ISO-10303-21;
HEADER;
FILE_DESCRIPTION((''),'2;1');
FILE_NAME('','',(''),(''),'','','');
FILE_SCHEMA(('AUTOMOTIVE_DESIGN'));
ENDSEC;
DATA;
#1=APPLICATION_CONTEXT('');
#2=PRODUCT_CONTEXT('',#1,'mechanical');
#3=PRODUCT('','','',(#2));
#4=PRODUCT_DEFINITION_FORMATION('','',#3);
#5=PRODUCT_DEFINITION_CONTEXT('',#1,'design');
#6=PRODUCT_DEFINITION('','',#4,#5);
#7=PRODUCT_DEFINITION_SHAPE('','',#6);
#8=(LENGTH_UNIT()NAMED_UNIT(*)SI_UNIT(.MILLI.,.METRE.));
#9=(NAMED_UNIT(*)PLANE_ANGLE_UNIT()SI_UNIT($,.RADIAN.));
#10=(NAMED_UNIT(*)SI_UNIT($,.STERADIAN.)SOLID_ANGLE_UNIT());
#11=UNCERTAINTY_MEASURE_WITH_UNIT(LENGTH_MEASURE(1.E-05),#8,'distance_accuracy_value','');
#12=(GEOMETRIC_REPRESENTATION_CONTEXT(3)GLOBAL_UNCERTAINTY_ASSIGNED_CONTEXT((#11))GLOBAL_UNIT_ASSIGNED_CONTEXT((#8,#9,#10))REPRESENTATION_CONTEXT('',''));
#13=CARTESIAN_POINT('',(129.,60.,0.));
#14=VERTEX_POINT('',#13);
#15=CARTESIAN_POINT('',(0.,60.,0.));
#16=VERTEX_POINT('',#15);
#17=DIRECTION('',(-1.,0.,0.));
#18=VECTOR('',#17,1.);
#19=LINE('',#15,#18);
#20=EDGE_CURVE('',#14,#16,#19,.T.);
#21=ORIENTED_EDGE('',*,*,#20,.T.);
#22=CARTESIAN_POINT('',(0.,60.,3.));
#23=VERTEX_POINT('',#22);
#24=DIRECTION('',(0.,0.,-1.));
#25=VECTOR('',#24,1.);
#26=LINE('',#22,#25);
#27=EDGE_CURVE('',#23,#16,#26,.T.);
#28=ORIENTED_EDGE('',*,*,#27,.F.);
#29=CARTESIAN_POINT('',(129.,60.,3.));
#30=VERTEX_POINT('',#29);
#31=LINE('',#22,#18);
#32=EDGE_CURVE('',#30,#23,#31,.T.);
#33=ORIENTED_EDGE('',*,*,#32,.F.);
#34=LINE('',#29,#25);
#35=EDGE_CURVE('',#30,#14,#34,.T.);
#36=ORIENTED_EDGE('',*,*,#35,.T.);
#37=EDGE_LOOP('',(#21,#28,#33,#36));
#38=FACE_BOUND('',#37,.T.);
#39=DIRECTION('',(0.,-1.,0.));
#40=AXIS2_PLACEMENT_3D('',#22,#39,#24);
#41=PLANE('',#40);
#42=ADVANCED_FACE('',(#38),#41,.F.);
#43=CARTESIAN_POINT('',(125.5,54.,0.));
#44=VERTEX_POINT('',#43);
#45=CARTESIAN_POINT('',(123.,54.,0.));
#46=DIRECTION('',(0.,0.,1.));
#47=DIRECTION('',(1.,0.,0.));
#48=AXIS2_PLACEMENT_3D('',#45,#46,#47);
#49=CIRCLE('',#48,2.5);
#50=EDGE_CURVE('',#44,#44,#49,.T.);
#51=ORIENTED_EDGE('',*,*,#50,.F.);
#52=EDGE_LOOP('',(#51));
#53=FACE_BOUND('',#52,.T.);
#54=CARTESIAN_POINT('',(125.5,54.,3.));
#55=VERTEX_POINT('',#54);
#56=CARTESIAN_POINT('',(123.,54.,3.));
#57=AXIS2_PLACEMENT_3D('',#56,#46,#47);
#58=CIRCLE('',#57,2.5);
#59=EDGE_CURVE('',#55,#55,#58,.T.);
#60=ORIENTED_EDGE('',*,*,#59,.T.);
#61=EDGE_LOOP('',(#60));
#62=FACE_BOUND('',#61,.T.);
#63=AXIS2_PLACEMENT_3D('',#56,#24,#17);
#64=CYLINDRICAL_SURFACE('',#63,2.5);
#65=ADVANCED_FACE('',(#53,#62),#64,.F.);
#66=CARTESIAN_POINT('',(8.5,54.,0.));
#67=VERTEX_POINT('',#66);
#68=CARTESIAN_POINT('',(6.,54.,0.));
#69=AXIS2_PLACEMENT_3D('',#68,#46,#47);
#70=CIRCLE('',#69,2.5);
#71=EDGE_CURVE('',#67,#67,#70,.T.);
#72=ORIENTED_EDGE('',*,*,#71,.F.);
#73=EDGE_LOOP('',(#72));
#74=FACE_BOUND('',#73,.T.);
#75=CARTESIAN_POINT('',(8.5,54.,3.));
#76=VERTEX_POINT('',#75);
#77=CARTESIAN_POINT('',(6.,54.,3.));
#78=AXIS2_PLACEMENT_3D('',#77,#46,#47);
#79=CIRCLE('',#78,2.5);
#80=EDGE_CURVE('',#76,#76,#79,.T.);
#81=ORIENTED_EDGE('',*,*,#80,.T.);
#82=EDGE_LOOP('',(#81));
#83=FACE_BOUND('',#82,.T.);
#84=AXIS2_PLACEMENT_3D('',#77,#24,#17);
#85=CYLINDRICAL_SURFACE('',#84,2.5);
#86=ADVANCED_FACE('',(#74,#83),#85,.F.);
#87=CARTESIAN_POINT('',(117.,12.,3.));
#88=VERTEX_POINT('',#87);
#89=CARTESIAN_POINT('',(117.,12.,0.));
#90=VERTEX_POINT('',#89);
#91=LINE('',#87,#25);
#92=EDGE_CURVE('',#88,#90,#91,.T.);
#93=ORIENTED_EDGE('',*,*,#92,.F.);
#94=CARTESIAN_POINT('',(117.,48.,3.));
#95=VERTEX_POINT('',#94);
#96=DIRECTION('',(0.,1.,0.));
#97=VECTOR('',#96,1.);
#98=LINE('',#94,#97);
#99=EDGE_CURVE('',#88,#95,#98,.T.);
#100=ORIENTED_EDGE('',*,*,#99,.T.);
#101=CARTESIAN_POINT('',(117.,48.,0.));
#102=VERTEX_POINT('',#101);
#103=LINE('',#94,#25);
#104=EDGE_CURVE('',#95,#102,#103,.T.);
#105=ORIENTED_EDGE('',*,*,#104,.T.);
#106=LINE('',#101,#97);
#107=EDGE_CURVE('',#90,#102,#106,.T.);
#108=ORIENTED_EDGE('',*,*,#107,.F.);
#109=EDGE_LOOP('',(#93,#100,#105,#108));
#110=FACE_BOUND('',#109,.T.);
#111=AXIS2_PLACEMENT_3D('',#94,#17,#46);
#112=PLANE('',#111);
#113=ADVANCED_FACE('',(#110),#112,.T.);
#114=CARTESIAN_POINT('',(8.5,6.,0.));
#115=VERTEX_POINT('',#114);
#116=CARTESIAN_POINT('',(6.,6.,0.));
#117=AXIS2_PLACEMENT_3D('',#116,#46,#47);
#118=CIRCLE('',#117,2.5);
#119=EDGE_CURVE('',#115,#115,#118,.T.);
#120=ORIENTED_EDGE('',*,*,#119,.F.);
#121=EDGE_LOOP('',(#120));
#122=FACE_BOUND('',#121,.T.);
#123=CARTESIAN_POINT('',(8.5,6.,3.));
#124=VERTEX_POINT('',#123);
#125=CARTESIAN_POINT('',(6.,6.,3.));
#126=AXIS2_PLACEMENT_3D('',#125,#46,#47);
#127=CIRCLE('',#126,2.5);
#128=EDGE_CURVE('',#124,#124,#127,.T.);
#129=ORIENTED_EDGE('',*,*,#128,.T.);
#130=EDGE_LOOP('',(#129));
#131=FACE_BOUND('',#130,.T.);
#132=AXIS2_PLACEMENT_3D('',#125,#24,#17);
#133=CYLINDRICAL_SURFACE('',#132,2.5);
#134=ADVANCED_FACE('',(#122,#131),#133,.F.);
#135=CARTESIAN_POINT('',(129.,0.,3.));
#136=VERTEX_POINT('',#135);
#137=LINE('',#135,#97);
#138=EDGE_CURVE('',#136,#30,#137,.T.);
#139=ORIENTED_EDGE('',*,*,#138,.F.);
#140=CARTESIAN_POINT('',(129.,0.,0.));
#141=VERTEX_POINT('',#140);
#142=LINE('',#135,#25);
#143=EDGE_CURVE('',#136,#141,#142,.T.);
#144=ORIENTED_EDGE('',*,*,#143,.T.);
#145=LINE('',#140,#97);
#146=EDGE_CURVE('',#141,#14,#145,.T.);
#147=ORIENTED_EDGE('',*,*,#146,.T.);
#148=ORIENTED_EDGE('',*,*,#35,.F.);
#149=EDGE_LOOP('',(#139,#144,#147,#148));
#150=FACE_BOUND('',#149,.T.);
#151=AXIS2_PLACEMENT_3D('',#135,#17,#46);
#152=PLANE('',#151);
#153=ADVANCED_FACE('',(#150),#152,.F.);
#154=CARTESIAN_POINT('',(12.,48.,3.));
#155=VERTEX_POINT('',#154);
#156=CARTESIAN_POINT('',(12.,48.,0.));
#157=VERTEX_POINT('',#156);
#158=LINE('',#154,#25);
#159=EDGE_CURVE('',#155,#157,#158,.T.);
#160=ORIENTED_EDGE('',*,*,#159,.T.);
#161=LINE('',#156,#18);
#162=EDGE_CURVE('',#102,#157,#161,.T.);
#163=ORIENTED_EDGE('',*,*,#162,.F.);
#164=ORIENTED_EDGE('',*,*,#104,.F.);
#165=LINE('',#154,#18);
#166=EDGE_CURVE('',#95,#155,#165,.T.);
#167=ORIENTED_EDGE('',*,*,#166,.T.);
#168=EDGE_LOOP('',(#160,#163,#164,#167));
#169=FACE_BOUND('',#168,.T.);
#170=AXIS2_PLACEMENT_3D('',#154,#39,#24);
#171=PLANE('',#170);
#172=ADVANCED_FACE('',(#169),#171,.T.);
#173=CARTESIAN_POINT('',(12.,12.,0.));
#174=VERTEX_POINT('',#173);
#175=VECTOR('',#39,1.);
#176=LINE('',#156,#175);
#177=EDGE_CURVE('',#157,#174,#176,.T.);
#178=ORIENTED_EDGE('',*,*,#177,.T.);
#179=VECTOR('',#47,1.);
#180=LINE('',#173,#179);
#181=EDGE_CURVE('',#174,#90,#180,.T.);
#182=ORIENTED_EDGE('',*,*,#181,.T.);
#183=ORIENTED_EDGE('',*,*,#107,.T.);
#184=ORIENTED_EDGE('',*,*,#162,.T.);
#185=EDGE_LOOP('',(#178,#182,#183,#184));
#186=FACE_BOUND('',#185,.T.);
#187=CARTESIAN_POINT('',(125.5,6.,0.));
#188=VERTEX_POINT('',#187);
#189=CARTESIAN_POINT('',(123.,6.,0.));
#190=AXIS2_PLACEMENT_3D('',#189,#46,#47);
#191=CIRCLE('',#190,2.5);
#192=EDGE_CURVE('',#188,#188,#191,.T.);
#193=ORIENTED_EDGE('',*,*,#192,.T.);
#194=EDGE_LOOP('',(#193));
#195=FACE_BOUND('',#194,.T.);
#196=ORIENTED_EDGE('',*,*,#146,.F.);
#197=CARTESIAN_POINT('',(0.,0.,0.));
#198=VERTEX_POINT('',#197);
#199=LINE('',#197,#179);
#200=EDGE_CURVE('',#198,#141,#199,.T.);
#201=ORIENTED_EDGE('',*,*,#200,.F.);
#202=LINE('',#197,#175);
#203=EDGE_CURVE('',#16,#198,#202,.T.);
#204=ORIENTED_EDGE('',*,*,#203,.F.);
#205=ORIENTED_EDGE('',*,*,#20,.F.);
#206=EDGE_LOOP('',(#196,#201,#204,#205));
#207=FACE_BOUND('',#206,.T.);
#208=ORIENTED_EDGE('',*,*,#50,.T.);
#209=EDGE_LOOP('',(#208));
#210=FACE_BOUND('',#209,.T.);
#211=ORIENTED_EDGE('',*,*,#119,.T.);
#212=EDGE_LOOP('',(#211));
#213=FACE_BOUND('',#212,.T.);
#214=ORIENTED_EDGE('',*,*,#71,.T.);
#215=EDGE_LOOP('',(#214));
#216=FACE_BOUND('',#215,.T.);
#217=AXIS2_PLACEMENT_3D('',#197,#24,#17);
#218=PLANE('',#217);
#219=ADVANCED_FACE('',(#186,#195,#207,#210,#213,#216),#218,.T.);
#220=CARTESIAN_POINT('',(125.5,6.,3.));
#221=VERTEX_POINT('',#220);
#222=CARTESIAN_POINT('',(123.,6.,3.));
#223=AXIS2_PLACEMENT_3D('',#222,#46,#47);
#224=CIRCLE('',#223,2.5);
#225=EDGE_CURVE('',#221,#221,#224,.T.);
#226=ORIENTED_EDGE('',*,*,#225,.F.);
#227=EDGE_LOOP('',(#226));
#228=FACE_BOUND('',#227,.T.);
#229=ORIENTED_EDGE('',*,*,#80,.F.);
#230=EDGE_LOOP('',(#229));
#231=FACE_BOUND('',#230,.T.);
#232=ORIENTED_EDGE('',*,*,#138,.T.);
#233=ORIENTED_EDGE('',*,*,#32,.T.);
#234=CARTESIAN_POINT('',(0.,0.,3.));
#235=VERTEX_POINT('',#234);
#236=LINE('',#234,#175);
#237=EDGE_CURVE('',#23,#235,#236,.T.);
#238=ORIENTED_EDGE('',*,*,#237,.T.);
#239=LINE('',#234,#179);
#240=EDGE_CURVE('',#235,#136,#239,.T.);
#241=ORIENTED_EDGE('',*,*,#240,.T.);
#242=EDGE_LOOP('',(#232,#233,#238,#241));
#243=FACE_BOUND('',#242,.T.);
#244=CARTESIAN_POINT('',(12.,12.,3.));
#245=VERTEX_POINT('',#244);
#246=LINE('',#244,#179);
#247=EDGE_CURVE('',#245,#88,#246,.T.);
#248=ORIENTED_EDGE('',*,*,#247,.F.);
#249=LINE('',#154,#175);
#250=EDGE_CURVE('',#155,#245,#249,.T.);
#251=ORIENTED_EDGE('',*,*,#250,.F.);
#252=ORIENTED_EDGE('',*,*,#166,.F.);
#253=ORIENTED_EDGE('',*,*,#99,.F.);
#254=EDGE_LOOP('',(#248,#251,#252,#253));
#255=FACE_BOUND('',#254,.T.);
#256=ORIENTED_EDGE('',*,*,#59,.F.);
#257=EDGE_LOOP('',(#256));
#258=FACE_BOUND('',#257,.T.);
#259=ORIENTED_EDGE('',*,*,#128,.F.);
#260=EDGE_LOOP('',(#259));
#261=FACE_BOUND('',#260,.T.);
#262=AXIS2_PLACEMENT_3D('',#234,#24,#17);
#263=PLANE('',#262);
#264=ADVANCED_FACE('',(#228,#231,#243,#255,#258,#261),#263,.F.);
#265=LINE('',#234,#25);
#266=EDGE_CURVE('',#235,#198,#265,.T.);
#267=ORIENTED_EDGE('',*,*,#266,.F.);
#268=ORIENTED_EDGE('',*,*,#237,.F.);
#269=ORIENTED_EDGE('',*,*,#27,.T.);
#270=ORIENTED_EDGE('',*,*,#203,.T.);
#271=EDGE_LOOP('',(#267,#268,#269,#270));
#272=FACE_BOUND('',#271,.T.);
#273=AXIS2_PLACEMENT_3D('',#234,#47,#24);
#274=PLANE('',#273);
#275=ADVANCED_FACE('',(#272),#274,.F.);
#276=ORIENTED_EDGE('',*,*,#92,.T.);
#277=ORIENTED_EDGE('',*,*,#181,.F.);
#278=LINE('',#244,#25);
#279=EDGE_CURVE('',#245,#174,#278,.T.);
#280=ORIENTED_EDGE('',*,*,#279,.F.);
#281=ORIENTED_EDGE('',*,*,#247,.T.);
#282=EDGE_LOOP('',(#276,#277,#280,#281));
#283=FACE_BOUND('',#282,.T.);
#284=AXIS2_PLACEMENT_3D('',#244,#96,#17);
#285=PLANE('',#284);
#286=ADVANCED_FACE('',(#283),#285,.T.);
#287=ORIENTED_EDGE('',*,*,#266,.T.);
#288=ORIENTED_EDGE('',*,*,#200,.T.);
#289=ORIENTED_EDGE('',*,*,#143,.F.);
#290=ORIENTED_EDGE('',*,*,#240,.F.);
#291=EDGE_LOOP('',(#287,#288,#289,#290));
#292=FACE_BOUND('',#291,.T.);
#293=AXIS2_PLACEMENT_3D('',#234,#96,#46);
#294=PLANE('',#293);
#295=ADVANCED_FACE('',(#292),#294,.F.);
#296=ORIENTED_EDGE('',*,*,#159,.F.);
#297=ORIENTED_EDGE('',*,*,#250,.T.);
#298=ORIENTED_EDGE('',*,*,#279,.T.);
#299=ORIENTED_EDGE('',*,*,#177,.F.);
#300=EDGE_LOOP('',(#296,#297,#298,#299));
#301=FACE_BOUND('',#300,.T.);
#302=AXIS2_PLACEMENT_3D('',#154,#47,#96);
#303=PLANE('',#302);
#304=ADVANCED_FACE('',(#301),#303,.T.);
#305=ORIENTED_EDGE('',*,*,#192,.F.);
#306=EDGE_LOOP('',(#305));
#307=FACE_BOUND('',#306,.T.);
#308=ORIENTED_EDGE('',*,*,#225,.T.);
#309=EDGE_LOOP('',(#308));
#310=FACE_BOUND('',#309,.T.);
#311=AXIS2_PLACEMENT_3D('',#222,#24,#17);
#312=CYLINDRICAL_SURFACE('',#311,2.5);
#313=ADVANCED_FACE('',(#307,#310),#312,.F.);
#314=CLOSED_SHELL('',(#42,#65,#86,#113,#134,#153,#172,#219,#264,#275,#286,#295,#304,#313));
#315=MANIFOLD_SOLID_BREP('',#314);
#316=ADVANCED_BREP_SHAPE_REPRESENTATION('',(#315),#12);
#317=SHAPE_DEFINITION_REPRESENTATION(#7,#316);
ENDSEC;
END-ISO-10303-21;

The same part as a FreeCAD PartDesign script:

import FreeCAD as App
import Part
import Sketcher
from FreeCAD import Vector
Q = App.Units.Quantity

doc = App.newDocument("Part")
params = doc.addObject("Spreadsheet::Sheet", "Params")
for row, (alias, value) in enumerate([
    ("sketch1_diameter", "5 mm"),
    ("sketch1_width", "129 mm"),
    ("sketch1_width2", "105 mm"),
    ("sketch1_height", "60 mm"),
    ("sketch1_height2", "36 mm"),
    ("pad1_length", "3 mm"),
], start=1):
    params.set(f"A{row}", alias)
    params.set(f"B{row}", "=" + value)
    params.setAlias(f"B{row}", alias)

body = doc.addObject("PartDesign::Body", "Body")

sketch1 = body.newObject("Sketcher::SketchObject", "Sketch")
sketch1.AttachmentSupport = (doc.getObject("XY_Plane"), [""])
sketch1.MapMode = "FlatFace"
sketch1.addGeometry([
    Part.LineSegment(Vector(0, 60, 0), Vector(0, 0, 0)),
    Part.LineSegment(Vector(0, 0, 0), Vector(129, 0, 0)),
    Part.LineSegment(Vector(129, 0, 0), Vector(129, 60, 0)),
    Part.LineSegment(Vector(129, 60, 0), Vector(0, 60, 0)),
    Part.Circle(Vector(6, 6, 0), Vector(0, 0, 1), 2.5),
    Part.Circle(Vector(123, 6, 0), Vector(0, 0, 1), 2.5),
    Part.Circle(Vector(6, 54, 0), Vector(0, 0, 1), 2.5),
    Part.LineSegment(Vector(117, 12, 0), Vector(12, 12, 0)),
    Part.LineSegment(Vector(12, 12, 0), Vector(12, 48, 0)),
    Part.LineSegment(Vector(12, 48, 0), Vector(117, 48, 0)),
    Part.LineSegment(Vector(117, 48, 0), Vector(117, 12, 0)),
    Part.Circle(Vector(123, 54, 0), Vector(0, 0, 1), 2.5),
], False)
sketch1.addConstraint([
    Sketcher.Constraint("Coincident", 0, 2, 1, 1),
    Sketcher.Constraint("Coincident", 1, 2, 2, 1),
    Sketcher.Constraint("Coincident", 2, 2, 3, 1),
    Sketcher.Constraint("Coincident", 3, 2, 0, 1),
    Sketcher.Constraint("Coincident", 7, 2, 8, 1),
    Sketcher.Constraint("Coincident", 8, 2, 9, 1),
    Sketcher.Constraint("Coincident", 9, 2, 10, 1),
    Sketcher.Constraint("Coincident", 10, 2, 7, 1),
    Sketcher.Constraint("Vertical", 0),
    Sketcher.Constraint("Horizontal", 1),
    Sketcher.Constraint("Vertical", 2),
    Sketcher.Constraint("Horizontal", 3),
    Sketcher.Constraint("Horizontal", 7),
    Sketcher.Constraint("Vertical", 8),
    Sketcher.Constraint("Horizontal", 9),
    Sketcher.Constraint("Vertical", 10),
    Sketcher.Constraint("Coincident", 0, 2, -1, 1),
    Sketcher.Constraint("Equal", 4, 5),
    Sketcher.Constraint("Equal", 5, 6),
    Sketcher.Constraint("Equal", 6, 11),
    Sketcher.Constraint("Horizontal", 4, 3, 5, 3),
    Sketcher.Constraint("Horizontal", 6, 3, 11, 3),
    Sketcher.Constraint("Vertical", 4, 3, 6, 3),
    Sketcher.Constraint("Vertical", 5, 3, 11, 3),
    Sketcher.Constraint("Diameter", 4, Q("5 mm")),
    Sketcher.Constraint("DistanceX", 1, 1, 1, 2, Q("129 mm")),
    Sketcher.Constraint("DistanceX", 7, 2, 7, 1, Q("105 mm")),
    Sketcher.Constraint("DistanceY", 0, 2, 0, 1, Q("60 mm")),
    Sketcher.Constraint("DistanceY", 8, 1, 8, 2, Q("36 mm")),
    Sketcher.Constraint("DistanceX", -1, 1, 4, 3, Q("6 mm")),
    Sketcher.Constraint("DistanceY", -1, 1, 4, 3, Q("6 mm")),
    Sketcher.Constraint("DistanceX", -1, 1, 5, 3, Q("123 mm")),
    Sketcher.Constraint("DistanceY", -1, 1, 6, 3, Q("54 mm")),
    Sketcher.Constraint("DistanceX", -1, 1, 7, 2, Q("12 mm")),
    Sketcher.Constraint("DistanceY", -1, 1, 7, 2, Q("12 mm")),
])
sketch1.setExpression("Constraints[24]", "Params.sketch1_diameter")
sketch1.setExpression("Constraints[25]", "Params.sketch1_width")
sketch1.setExpression("Constraints[26]", "Params.sketch1_width2")
sketch1.setExpression("Constraints[27]", "Params.sketch1_height")
sketch1.setExpression("Constraints[28]", "Params.sketch1_height2")
pad1 = body.newObject("PartDesign::Pad", "Pad")
pad1.Profile = sketch1
pad1.setExpression("Length", "Params.pad1_length")

doc.recompute()
